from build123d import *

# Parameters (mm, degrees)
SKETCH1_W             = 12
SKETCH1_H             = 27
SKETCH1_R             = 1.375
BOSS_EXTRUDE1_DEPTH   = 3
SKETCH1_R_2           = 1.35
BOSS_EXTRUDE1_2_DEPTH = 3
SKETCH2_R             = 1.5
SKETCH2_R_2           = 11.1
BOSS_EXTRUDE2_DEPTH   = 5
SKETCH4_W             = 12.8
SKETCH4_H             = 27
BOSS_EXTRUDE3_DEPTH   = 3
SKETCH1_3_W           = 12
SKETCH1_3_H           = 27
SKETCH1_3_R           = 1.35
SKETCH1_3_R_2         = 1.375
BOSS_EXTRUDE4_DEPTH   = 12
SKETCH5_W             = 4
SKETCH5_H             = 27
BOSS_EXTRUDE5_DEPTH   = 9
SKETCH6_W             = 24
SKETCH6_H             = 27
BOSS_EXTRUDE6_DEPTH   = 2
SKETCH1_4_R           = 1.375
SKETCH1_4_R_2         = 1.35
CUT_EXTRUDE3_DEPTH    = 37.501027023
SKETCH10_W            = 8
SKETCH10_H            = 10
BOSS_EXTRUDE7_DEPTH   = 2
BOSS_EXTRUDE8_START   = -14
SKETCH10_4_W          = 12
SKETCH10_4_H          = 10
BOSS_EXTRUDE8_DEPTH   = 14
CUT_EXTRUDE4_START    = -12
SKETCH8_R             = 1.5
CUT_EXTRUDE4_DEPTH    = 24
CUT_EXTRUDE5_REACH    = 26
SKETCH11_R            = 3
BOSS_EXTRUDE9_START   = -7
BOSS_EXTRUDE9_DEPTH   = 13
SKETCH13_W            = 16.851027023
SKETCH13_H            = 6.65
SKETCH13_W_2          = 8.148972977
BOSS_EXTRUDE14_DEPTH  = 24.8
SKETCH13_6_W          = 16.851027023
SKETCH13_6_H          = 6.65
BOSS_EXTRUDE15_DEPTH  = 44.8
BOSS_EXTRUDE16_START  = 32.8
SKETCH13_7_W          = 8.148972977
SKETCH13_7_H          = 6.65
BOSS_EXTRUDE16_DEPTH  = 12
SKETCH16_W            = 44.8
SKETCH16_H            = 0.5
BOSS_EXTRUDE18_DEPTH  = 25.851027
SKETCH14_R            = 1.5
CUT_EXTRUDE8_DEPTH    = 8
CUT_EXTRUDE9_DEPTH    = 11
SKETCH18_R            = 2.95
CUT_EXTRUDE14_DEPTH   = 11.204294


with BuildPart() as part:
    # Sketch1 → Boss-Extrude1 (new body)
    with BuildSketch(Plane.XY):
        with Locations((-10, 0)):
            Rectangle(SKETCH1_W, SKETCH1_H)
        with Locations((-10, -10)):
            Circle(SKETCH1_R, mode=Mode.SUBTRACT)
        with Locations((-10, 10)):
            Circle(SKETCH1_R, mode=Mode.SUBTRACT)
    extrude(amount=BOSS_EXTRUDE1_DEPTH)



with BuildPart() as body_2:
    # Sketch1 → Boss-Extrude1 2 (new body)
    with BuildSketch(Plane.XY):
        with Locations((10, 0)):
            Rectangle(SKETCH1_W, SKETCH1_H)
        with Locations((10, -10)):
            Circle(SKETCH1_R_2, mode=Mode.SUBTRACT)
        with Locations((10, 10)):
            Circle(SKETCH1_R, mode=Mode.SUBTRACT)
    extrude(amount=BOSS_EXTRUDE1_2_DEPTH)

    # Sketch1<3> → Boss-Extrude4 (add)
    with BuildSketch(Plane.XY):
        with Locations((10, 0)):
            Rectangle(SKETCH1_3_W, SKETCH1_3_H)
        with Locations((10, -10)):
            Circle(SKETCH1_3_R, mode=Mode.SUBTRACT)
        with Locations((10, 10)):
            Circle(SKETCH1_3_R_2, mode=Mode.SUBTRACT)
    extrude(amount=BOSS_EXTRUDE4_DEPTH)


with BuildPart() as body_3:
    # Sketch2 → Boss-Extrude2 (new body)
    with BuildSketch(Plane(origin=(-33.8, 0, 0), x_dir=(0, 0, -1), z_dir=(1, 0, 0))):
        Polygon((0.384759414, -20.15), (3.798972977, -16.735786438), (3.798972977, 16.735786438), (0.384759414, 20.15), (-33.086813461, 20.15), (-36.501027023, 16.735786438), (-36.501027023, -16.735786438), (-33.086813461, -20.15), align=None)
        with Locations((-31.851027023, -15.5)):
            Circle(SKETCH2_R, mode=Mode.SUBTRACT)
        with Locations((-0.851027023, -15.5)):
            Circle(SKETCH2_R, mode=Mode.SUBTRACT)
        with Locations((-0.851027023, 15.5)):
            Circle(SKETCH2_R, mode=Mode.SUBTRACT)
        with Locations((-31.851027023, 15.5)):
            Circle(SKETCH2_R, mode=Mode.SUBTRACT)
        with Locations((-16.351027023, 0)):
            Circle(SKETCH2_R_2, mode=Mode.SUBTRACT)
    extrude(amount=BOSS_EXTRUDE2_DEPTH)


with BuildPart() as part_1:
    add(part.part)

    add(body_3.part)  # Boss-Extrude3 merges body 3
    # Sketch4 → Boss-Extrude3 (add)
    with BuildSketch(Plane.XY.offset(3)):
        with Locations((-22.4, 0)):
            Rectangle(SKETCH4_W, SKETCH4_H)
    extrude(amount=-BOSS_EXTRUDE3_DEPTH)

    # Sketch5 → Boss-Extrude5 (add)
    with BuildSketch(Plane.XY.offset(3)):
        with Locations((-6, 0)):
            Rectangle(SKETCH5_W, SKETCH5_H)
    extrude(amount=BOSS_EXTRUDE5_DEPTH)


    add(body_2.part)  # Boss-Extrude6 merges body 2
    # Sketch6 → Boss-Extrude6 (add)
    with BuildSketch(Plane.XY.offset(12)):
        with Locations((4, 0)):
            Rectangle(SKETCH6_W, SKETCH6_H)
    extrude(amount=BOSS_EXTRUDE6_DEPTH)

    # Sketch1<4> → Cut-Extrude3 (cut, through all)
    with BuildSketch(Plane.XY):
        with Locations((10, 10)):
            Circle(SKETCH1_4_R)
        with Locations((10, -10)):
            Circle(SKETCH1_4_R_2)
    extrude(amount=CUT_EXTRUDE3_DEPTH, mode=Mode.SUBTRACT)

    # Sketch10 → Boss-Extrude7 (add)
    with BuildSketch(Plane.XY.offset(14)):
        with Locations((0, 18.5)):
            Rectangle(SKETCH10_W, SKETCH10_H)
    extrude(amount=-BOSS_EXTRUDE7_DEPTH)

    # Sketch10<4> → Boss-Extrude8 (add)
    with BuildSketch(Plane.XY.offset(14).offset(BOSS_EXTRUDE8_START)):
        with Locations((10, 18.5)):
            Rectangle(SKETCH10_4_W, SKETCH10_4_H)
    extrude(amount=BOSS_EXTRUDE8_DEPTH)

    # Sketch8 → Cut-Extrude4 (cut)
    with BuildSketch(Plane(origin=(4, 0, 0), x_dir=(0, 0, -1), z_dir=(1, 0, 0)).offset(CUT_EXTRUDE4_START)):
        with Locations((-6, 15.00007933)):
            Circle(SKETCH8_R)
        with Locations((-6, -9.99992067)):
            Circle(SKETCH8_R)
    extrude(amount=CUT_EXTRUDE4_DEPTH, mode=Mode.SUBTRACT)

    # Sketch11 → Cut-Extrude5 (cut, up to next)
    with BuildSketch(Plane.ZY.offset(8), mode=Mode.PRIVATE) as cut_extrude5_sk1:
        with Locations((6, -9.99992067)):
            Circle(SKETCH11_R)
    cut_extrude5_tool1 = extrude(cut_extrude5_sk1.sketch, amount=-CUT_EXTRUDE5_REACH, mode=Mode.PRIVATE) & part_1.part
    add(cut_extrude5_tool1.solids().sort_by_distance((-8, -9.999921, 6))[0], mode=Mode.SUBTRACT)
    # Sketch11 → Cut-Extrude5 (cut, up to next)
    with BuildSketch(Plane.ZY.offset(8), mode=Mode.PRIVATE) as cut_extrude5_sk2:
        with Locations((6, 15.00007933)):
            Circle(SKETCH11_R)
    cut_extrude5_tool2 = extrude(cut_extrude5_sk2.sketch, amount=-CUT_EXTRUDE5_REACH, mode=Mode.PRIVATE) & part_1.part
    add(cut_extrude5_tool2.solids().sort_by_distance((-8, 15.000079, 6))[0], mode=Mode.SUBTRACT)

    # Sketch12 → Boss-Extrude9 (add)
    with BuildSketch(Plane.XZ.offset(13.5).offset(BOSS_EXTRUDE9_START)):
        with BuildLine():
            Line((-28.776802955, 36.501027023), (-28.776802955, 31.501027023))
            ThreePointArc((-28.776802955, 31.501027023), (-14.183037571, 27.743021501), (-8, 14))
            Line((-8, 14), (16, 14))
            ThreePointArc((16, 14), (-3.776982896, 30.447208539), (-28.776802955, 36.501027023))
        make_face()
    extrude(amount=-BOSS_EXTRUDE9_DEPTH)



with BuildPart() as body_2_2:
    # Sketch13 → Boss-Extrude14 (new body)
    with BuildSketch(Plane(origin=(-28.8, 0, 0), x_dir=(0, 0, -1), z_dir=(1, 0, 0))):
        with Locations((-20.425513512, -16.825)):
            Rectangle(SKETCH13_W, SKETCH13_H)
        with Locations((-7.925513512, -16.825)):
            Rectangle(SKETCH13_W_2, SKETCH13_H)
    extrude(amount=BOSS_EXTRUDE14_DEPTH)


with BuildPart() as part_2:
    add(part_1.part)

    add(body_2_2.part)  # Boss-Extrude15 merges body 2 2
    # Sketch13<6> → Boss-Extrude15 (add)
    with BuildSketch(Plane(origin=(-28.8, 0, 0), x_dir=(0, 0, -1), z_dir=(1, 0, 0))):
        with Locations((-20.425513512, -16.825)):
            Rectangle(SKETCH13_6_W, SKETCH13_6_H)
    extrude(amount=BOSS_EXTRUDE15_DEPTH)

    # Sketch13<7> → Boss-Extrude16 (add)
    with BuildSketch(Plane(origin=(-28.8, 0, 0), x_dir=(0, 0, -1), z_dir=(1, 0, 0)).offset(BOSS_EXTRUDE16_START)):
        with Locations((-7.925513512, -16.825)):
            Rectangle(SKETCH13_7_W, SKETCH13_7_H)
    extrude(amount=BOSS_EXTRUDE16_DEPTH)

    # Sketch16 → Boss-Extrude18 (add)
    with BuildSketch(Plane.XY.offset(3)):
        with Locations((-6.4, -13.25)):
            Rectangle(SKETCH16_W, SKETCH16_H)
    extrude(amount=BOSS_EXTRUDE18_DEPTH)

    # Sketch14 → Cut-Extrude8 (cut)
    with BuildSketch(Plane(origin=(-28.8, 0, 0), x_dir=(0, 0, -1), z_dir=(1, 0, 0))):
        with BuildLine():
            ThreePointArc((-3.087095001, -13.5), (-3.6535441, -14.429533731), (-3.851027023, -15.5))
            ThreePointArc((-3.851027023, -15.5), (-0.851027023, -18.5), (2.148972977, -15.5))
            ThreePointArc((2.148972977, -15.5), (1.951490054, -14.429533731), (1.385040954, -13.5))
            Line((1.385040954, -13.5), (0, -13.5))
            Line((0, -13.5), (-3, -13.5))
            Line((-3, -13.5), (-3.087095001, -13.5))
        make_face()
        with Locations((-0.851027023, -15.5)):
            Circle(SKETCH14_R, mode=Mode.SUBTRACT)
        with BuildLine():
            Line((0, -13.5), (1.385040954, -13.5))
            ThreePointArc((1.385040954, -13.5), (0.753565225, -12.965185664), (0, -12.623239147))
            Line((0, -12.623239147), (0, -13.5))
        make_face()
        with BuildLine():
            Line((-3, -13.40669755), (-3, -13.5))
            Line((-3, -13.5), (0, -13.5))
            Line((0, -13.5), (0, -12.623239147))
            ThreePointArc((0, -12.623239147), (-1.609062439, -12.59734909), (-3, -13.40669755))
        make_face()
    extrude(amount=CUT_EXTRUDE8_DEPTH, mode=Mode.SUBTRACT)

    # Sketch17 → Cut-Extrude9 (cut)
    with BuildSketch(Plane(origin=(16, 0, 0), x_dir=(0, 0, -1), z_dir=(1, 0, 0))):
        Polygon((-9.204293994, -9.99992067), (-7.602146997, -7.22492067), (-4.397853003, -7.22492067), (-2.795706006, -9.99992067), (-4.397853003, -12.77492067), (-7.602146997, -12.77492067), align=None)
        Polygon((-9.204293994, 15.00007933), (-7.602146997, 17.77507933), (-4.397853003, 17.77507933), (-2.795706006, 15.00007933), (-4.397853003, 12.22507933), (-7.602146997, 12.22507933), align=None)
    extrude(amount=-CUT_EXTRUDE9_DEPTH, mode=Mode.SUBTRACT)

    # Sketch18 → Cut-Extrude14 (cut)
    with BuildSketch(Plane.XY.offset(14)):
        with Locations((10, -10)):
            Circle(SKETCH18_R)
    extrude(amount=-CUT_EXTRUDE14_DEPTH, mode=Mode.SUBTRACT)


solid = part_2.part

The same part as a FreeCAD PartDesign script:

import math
import FreeCAD as App
import Part
import Sketcher
Q = App.Units.Quantity


def add_polygon(sketch, points):
    """Adds a closed chain of lines whose ends are joined by coincident constraints."""
    first, n = sketch.GeometryCount, len(points)
    for a, b in zip(points, points[1:] + points[:1]):
        sketch.addGeometry(Part.LineSegment(App.Vector(*a, 0), App.Vector(*b, 0)), False)
    for i in range(n):
        sketch.addConstraint(Sketcher.Constraint("Coincident", first + i, 2, first + (i + 1) % n, 1))

doc = App.newDocument("Part")
params = doc.addObject("Spreadsheet::Sheet", "Params")
for row, (alias, value) in enumerate([
    ("sketch1_diameter", "2.75 mm"),
    ("sketch1_width", "12 mm"),
    ("sketch1_height", "27 mm"),
    ("pad1_length", "3 mm"),
    ("sketch2_diameter", "2.7 mm"),
    ("sketch2_diameter2", "2.75 mm"),
    ("sketch2_width", "12 mm"),
    ("sketch2_height", "27 mm"),
    ("pad2_length", "3 mm"),
    ("sketch3_diameter", "2.7 mm"),
    ("sketch3_diameter2", "2.75 mm"),
    ("sketch3_width", "12 mm"),
    ("sketch3_height", "27 mm"),
    ("pad3_length", "12 mm"),
    ("sketch4_diameter", "3 mm"),
    ("sketch4_diameter2", "22.2 mm"),
    ("pad4_length", "5 mm"),
    ("sketch5_height", "27 mm"),
    ("sketch5_width", "12.8 mm"),
    ("pad5_length", "3 mm"),
    ("sketch6_width", "4 mm"),
    ("sketch6_height", "27 mm"),
    ("pad6_length", "9 mm"),
    ("sketch7_width", "24 mm"),
    ("sketch7_height", "27 mm"),
    ("pad7_length", "2 mm"),
    ("sketch8_diameter", "2.7 mm"),
    ("sketch8_diameter2", "2.75 mm"),
    ("sketch9_width", "8 mm"),
    ("sketch9_height", "10 mm"),
    ("pad8_length", "2 mm"),
    ("sketch10_width", "12 mm"),
    ("sketch10_height", "10 mm"),
    ("pad9_length", "14 mm"),
    ("sketch11_diameter", "3 mm"),
    ("pocket2_length", "24 mm"),
    ("sketch12_diameter", "6 mm"),
    ("pocket3_length", "4 mm"),
    ("sketch13_diameter", "6 mm"),
    ("pocket4_length", "4 mm"),
    ("sketch14_width", "24 mm"),
    ("sketch14_height", "5 mm"),
    ("pad10_length", "13 mm"),
    ("sketch15_height", "25 mm"),
    ("sketch15_width", "6.65 mm"),
    ("pad11_length", "24.8 mm"),
    ("sketch16_width", "6.65 mm"),
    ("pad12_length", "44.8 mm"),
    ("sketch17_width", "6.65 mm"),
    ("pad13_length", "12 mm"),
    ("sketch18_width", "44.8 mm"),
    ("sketch18_height", "0.5 mm"),
    ("pad14_length", "25.851027 mm"),
    ("sketch19_diameter", "3 mm"),
    ("sketch19_radius", "3 mm"),
    ("pocket5_length", "8 mm"),
    ("pocket6_length", "11 mm"),
    ("sketch21_diameter", "5.9 mm"),
    ("pocket7_length", "11.204294 mm"),
], start=1):
    params.set(f"A{row}", alias)
    params.set(f"B{row}", "=" + value)
    params.setAlias(f"B{row}", alias)

body = doc.addObject("PartDesign::Body", "Body")

sketch1 = doc.addObject("Sketcher::SketchObject", "Sketch")
body.addObject(sketch1)
sketch1.AttachmentSupport = (doc.XY_Plane, [""])
sketch1.MapMode = "FlatFace"
add_polygon(sketch1, [(-16, 13.5), (-16, -13.5), (-4, -13.5), (-4, 13.5)])
sketch1.addGeometry(Part.Circle(App.Vector(-10, -10, 0), App.Vector(0, 0, 1), 1.375), False)
sketch1.addGeometry(Part.Circle(App.Vector(-10, 10, 0), App.Vector(0, 0, 1), 1.375), False)
sketch1.addConstraint(Sketcher.Constraint("Vertical", 0))
sketch1.addConstraint(Sketcher.Constraint("Horizontal", 1))
sketch1.addConstraint(Sketcher.Constraint("Vertical", 2))
sketch1.addConstraint(Sketcher.Constraint("Horizontal", 3))
sketch1.addConstraint(Sketcher.Constraint("Equal", 4, 5))
sketch1.addConstraint(Sketcher.Constraint("Symmetric", 4, 3, 5, 3, -1))
sketch1.addConstraint(Sketcher.Constraint("Diameter", 4, Q("2.75 mm")))
sketch1.addConstraint(Sketcher.Constraint("DistanceX", 1, 1, 1, 2, Q("12 mm")))
sketch1.addConstraint(Sketcher.Constraint("DistanceY", 0, 2, 0, 1, Q("27 mm")))
sketch1.addConstraint(Sketcher.Constraint("DistanceX", 4, 3, -1, 1, Q("10 mm")))
sketch1.addConstraint(Sketcher.Constraint("DistanceY", 4, 3, -1, 1, Q("10 mm")))
sketch1.addConstraint(Sketcher.Constraint("DistanceX", 0, 2, -1, 1, Q("16 mm")))
sketch1.addConstraint(Sketcher.Constraint("DistanceY", 0, 2, -1, 1, Q("13.5 mm")))
sketch1.setExpression("Constraints[10]", "Params.sketch1_diameter")
sketch1.setExpression("Constraints[11]", "Params.sketch1_width")
sketch1.setExpression("Constraints[12]", "Params.sketch1_height")
pad1 = doc.addObject("PartDesign::Pad", "Pad")
body.addObject(pad1)
pad1.Profile = sketch1
pad1.setExpression("Length", "Params.pad1_length")
body2 = doc.addObject("PartDesign::Body", "Body001")

sketch2 = doc.addObject("Sketcher::SketchObject", "Sketch001")
body2.addObject(sketch2)
sketch2.AttachmentSupport = (doc.getObject("XY_Plane001"), [""])
sketch2.MapMode = "FlatFace"
add_polygon(sketch2, [(4, 13.5), (4, -13.5), (16, -13.5), (16, 13.5)])
sketch2.addGeometry(Part.Circle(App.Vector(10, -10, 0), App.Vector(0, 0, 1), 1.35), False)
sketch2.addGeometry(Part.Circle(App.Vector(10, 10, 0), App.Vector(0, 0, 1), 1.375), False)
sketch2.addConstraint(Sketcher.Constraint("Vertical", 0))
sketch2.addConstraint(Sketcher.Constraint("Horizontal", 1))
sketch2.addConstraint(Sketcher.Constraint("Vertical", 2))
sketch2.addConstraint(Sketcher.Constraint("Horizontal", 3))
sketch2.addConstraint(Sketcher.Constraint("Symmetric", 4, 3, 5, 3, -1))
sketch2.addConstraint(Sketcher.Constraint("Diameter", 4, Q("2.7 mm")))
sketch2.addConstraint(Sketcher.Constraint("Diameter", 5, Q("2.75 mm")))
sketch2.addConstraint(Sketcher.Constraint("DistanceX", 1, 1, 1, 2, Q("12 mm")))
sketch2.addConstraint(Sketcher.Constraint("DistanceY", 0, 2, 0, 1, Q("27 mm")))
sketch2.addConstraint(Sketcher.Constraint("DistanceX", -1, 1, 4, 3, Q("10 mm")))
sketch2.addConstraint(Sketcher.Constraint("DistanceY", 4, 3, -1, 1, Q("10 mm")))
sketch2.addConstraint(Sketcher.Constraint("DistanceX", -1, 1, 0, 2, Q("4 mm")))
sketch2.addConstraint(Sketcher.Constraint("DistanceY", 0, 2, -1, 1, Q("13.5 mm")))
sketch2.setExpression("Constraints[9]", "Params.sketch2_diameter")
sketch2.setExpression("Constraints[10]", "Params.sketch2_diameter2")
sketch2.setExpression("Constraints[11]", "Params.sketch2_width")
sketch2.setExpression("Constraints[12]", "Params.sketch2_height")
pad2 = doc.addObject("PartDesign::Pad", "Pad001")
body2.addObject(pad2)
pad2.Profile = sketch2
pad2.setExpression("Length", "Params.pad2_length")

sketch3 = doc.addObject("Sketcher::SketchObject", "Sketch002")
body2.addObject(sketch3)
sketch3.AttachmentSupport = (doc.getObject("XY_Plane001"), [""])
sketch3.MapMode = "FlatFace"
add_polygon(sketch3, [(4, 13.5), (4, -13.5), (16, -13.5), (16, 13.5)])
sketch3.addGeometry(Part.Circle(App.Vector(10, -10, 0), App.Vector(0, 0, 1), 1.35), False)
sketch3.addGeometry(Part.Circle(App.Vector(10, 10, 0), App.Vector(0, 0, 1), 1.375), False)
sketch3.addConstraint(Sketcher.Constraint("Vertical", 0))
sketch3.addConstraint(Sketcher.Constraint("Horizontal", 1))
sketch3.addConstraint(Sketcher.Constraint("Vertical", 2))
sketch3.addConstraint(Sketcher.Constraint("Horizontal", 3))
sketch3.addConstraint(Sketcher.Constraint("Symmetric", 4, 3, 5, 3, -1))
sketch3.addConstraint(Sketcher.Constraint("Diameter", 4, Q("2.7 mm")))
sketch3.addConstraint(Sketcher.Constraint("Diameter", 5, Q("2.75 mm")))
sketch3.addConstraint(Sketcher.Constraint("DistanceX", 1, 1, 1, 2, Q("12 mm")))
sketch3.addConstraint(Sketcher.Constraint("DistanceY", 0, 2, 0, 1, Q("27 mm")))
sketch3.addConstraint(Sketcher.Constraint("DistanceX", -1, 1, 4, 3, Q("10 mm")))
sketch3.addConstraint(Sketcher.Constraint("DistanceY", 4, 3, -1, 1, Q("10 mm")))
sketch3.addConstraint(Sketcher.Constraint("DistanceX", -1, 1, 0, 2, Q("4 mm")))
sketch3.addConstraint(Sketcher.Constraint("DistanceY", 0, 2, -1, 1, Q("13.5 mm")))
sketch3.setExpression("Constraints[9]", "Params.sketch3_diameter")
sketch3.setExpression("Constraints[10]", "Params.sketch3_diameter2")
sketch3.setExpression("Constraints[11]", "Params.sketch3_width")
sketch3.setExpression("Constraints[12]", "Params.sketch3_height")
pad3 = doc.addObject("PartDesign::Pad", "Pad002")
body2.addObject(pad3)
pad3.Profile = sketch3
pad3.setExpression("Length", "Params.pad3_length")
body3 = doc.addObject("PartDesign::Body", "Body002")

sketch4 = doc.addObject("Sketcher::SketchObject", "Sketch003")
body3.addObject(sketch4)
sketch4.AttachmentSupport = (doc.getObject("YZ_Plane002"), [""])
sketch4.MapMode = "FlatFace"
sketch4.AttachmentOffset = App.Placement(App.Vector(0, 0, -33.8), App.Rotation())
add_polygon(sketch4, [(-20.15, -0.384759), (-16.735786, -3.798973), (16.735786, -3.798973), (20.15, -0.384759), (20.15, 33.086813), (16.735786, 36.501027), (-16.735786, 36.501027), (-20.15, 33.086813)])
sketch4.addGeometry(Part.Circle(App.Vector(-15.5, 31.851027, 0), App.Vector(0, 0, 1), 1.5), False)
sketch4.addGeometry(Part.Circle(App.Vector(-15.5, 0.851027, 0), App.Vector(0, 0, 1), 1.5), False)
sketch4.addGeometry(Part.Circle(App.Vector(15.5, 31.851027, 0), App.Vector(0, 0, 1), 1.5), False)
sketch4.addGeometry(Part.Circle(App.Vector(0, 16.351027, 0), App.Vector(0, 0, 1), 11.1), False)
sketch4.addGeometry(Part.Circle(App.Vector(15.5, 0.851027, 0), App.Vector(0, 0, 1), 1.5), False)
sketch4.addConstraint(Sketcher.Constraint("Horizontal", 1))
sketch4.addConstraint(Sketcher.Constraint("Vertical", 3))
sketch4.addConstraint(Sketcher.Constraint("Horizontal", 5))
sketch4.addConstraint(Sketcher.Constraint("Vertical", 7))
sketch4.addConstraint(Sketcher.Constraint("Equal", 8, 9))
sketch4.addConstraint(Sketcher.Constraint("Equal", 9, 10))
sketch4.addConstraint(Sketcher.Constraint("Equal", 10, 12))
sketch4.addConstraint(Sketcher.Constraint("Symmetric", 8, 3, 10, 3, -2))
sketch4.addConstraint(Sketcher.Constraint("Symmetric", 9, 3, 12, 3, -2))
sketch4.addConstraint(Sketcher.Constraint("Symmetric", 3, 2, 6, 2, -2))
sketch4.addConstraint(Sketcher.Constraint("PointOnObject", 11, 3, -2))
sketch4.addConstraint(Sketcher.Constraint("Perpendicular", 0, 2))
sketch4.addConstraint(Sketcher.Constraint("Perpendicular", 2, 4))
sketch4.addConstraint(Sketcher.Constraint("Perpendicular", 4, 6))
sketch4.addConstraint(Sketcher.Constraint("Horizontal", 2, 2, 7, 2))
sketch4.addConstraint(Sketcher.Constraint("Vertical", 8, 3, 9, 3))
sketch4.addConstraint(Sketcher.Constraint("Vertical", 1, 2, 4, 2))
sketch4.addConstraint(Sketcher.Constraint("Vertical", 0, 2, 5, 2))
sketch4.addConstraint(Sketcher.Constraint("Equal", 5, 3))
sketch4.addConstraint(Sketcher.Constraint("Diameter", 8, Q("3 mm")))
sketch4.addConstraint(Sketcher.Constraint("Diameter", 11, Q("22.2 mm")))
sketch4.addConstraint(Sketcher.Constraint("DistanceY", 9, 3, 8, 3, Q("31 mm")))
sketch4.addConstraint(Sketcher.Constraint("DistanceX", 8, 3, 10, 3, Q("31 mm")))
sketch4.addConstraint(Sketcher.Constraint("DistanceY", 11, 3, 8, 3, Q("15.5 mm")))
sketch4.addConstraint(Sketcher.Constraint("DistanceX", -1, 1, 2, 2, Q("20.15 mm")))
sketch4.addConstraint(Sketcher.Constraint("DistanceY", 0, 2, 9, 3, Q("4.65 mm")))
sketch4.addConstraint(Sketcher.Constraint("DistanceX", 1, 1, 1, 2, Q("33.471573 mm")))
sketch4.addConstraint(Sketcher.Constraint("DistanceY", 2, 2, -1, 1, Q("0.384759 mm")))
sketch4.setExpression("Constraints[27]", "Params.sketch4_diameter")
sketch4.setExpression("Constraints[28]", "Params.sketch4_diameter2")
pad4 = doc.addObject("PartDesign::Pad", "Pad003")
body3.addObject(pad4)
pad4.Profile = sketch4
pad4.setExpression("Length", "Params.pad4_length")
body.AllowCompound = True
doc.recompute()

boolean = doc.addObject("PartDesign::Boolean", "Boolean")
body.addObject(boolean)
boolean.Type = "Fuse"
boolean.addObjects([body3])

sketch5 = doc.addObject("Sketcher::SketchObject", "Sketch004")
body.addObject(sketch5)
sketch5.AttachmentSupport = (doc.XY_Plane, [""])
sketch5.MapMode = "FlatFace"
sketch5.AttachmentOffset = App.Placement(App.Vector(0, 0, 3), App.Rotation())
add_polygon(sketch5, [(-28.8, 13.5), (-28.8, -13.5), (-16, -13.5), (-16, 13.5)])
sketch5.addConstraint(Sketcher.Constraint("Vertical", 0))
sketch5.addConstraint(Sketcher.Constraint("Horizontal", 1))
sketch5.addConstraint(Sketcher.Constraint("Vertical", 2))
sketch5.addConstraint(Sketcher.Constraint("Horizontal", 3))
sketch5.addConstraint(Sketcher.Constraint("DistanceY", 0, 2, 0, 1, Q("27 mm")))
sketch5.addConstraint(Sketcher.Constraint("DistanceX", 1, 1, 1, 2, Q("12.8 mm")))
sketch5.addConstraint(Sketcher.Constraint("DistanceX", 1, 2, -1, 1, Q("16 mm")))
sketch5.addConstraint(Sketcher.Constraint("DistanceY", 0, 2, -1, 1, Q("13.5 mm")))
sketch5.setExpression("Constraints[8]", "Params.sketch5_height")
sketch5.setExpression("Constraints[9]", "Params.sketch5_width")
pad5 = doc.addObject("PartDesign::Pad", "Pad004")
body.addObject(pad5)
pad5.Profile = sketch5
pad5.setExpression("Length", "Params.pad5_length")
pad5.Reversed = True

sketch6 = doc.addObject("Sketcher::SketchObject", "Sketch005")
body.addObject(sketch6)
sketch6.AttachmentSupport = (doc.XY_Plane, [""])
sketch6.MapMode = "FlatFace"
sketch6.AttachmentOffset = App.Placement(App.Vector(0, 0, 3), App.Rotation())
add_polygon(sketch6, [(-8, 13.5), (-8, -13.5), (-4, -13.5), (-4, 13.5)])
sketch6.addConstraint(Sketcher.Constraint("Vertical", 0))
sketch6.addConstraint(Sketcher.Constraint("Horizontal", 1))
sketch6.addConstraint(Sketcher.Constraint("Vertical", 2))
sketch6.addConstraint(Sketcher.Constraint("Horizontal", 3))
sketch6.addConstraint(Sketcher.Constraint("DistanceX", 1, 1, 1, 2, Q("4 mm")))
sketch6.addConstraint(Sketcher.Constraint("DistanceY", 0, 2, 0, 1, Q("27 mm")))
sketch6.addConstraint(Sketcher.Constraint("DistanceX", 0, 2, -1, 1, Q("8 mm")))
sketch6.addConstraint(Sketcher.Constraint("DistanceY", 0, 2, -1, 1, Q("13.5 mm")))
sketch6.setExpression("Constraints[8]", "Params.sketch6_width")
sketch6.setExpression("Constraints[9]", "Params.sketch6_height")
pad6 = doc.addObject("PartDesign::Pad", "Pad005")
body.addObject(pad6)
pad6.Profile = sketch6
pad6.setExpression("Length", "Params.pad6_length")
doc.recompute()

boolean2 = doc.addObject("PartDesign::Boolean", "Boolean001")
body.addObject(boolean2)
boolean2.Type = "Fuse"
boolean2.addObjects([body2])

sketch7 = doc.addObject("Sketcher::SketchObject", "Sketch006")
body.addObject(sketch7)
sketch7.AttachmentSupport = (doc.XY_Plane, [""])
sketch7.MapMode = "FlatFace"
sketch7.AttachmentOffset = App.Placement(App.Vector(0, 0, 12), App.Rotation())
add_polygon(sketch7, [(-8, 13.5), (-8, -13.5), (16, -13.5), (16, 13.5)])
sketch7.addConstraint(Sketcher.Constraint("Vertical", 0))
sketch7.addConstraint(Sketcher.Constraint("Horizontal", 1))
sketch7.addConstraint(Sketcher.Constraint("Vertical", 2))
sketch7.addConstraint(Sketcher.Constraint("Horizontal", 3))
sketch7.addConstraint(Sketcher.Constraint("DistanceX", 1, 1, 1, 2, Q("24 mm")))
sketch7.addConstraint(Sketcher.Constraint("DistanceY", 0, 2, 0, 1, Q("27 mm")))
sketch7.addConstraint(Sketcher.Constraint("DistanceX", 0, 2, -1, 1, Q("8 mm")))
sketch7.addConstraint(Sketcher.Constraint("DistanceY", 0, 2, -1, 1, Q("13.5 mm")))
sketch7.setExpression("Constraints[8]", "Params.sketch7_width")
sketch7.setExpression("Constraints[9]", "Params.sketch7_height")
pad7 = doc.addObject("PartDesign::Pad", "Pad006")
body.addObject(pad7)
pad7.Profile = sketch7
pad7.setExpression("Length", "Params.pad7_length")

sketch8 = doc.addObject("Sketcher::SketchObject", "Sketch007")
body.addObject(sketch8)
sketch8.AttachmentSupport = (doc.XY_Plane, [""])
sketch8.MapMode = "FlatFace"
sketch8.addGeometry(Part.Circle(App.Vector(10, 10, 0), App.Vector(0, 0, 1), 1.375), False)
sketch8.addGeometry(Part.Circle(App.Vector(10, -10, 0), App.Vector(0, 0, 1), 1.35), False)
sketch8.addConstraint(Sketcher.Constraint("Symmetric", 0, 3, 1, 3, -1))
sketch8.addConstraint(Sketcher.Constraint("Diameter", 1, Q("2.7 mm")))
sketch8.addConstraint(Sketcher.Constraint("Diameter", 0, Q("2.75 mm")))
sketch8.addConstraint(Sketcher.Constraint("DistanceX", -1, 1, 0, 3, Q("10 mm")))
sketch8.addConstraint(Sketcher.Constraint("DistanceY", -1, 1, 0, 3, Q("10 mm")))
sketch8.setExpression("Constraints[1]", "Params.sketch8_diameter")
sketch8.setExpression("Constraints[2]", "Params.sketch8_diameter2")
pocket1 = doc.addObject("PartDesign::Pocket", "Pocket")
body.addObject(pocket1)
pocket1.Profile = sketch8
pocket1.Type = "ThroughAll"
pocket1.Reversed = True

sketch9 = doc.addObject("Sketcher::SketchObject", "Sketch008")
body.addObject(sketch9)
sketch9.AttachmentSupport = (doc.XY_Plane, [""])
sketch9.MapMode = "FlatFace"
sketch9.AttachmentOffset = App.Placement(App.Vector(0, 0, 14), App.Rotation())
add_polygon(sketch9, [(-4, 23.5), (-4, 13.5), (4, 13.5), (4, 23.5)])
sketch9.addConstraint(Sketcher.Constraint("Vertical", 0))
sketch9.addConstraint(Sketcher.Constraint("Horizontal", 1))
sketch9.addConstraint(Sketcher.Constraint("Vertical", 2))
sketch9.addConstraint(Sketcher.Constraint("Horizontal", 3))
sketch9.addConstraint(Sketcher.Constraint("DistanceX", 1, 1, 1, 2, Q("8 mm")))
sketch9.addConstraint(Sketcher.Constraint("DistanceY", 0, 2, 0, 1, Q("10 mm")))
sketch9.addConstraint(Sketcher.Constraint("DistanceX", 0, 2, -1, 1, Q("4 mm")))
sketch9.addConstraint(Sketcher.Constraint("DistanceY", -1, 1, 0, 2, Q("13.5 mm")))
sketch9.setExpression("Constraints[8]", "Params.sketch9_width")
sketch9.setExpression("Constraints[9]", "Params.sketch9_height")
pad8 = doc.addObject("PartDesign::Pad", "Pad007")
body.addObject(pad8)
pad8.Profile = sketch9
pad8.setExpression("Length", "Params.pad8_length")
pad8.Reversed = True

sketch10 = doc.addObject("Sketcher::SketchObject", "Sketch009")
body.addObject(sketch10)
sketch10.AttachmentSupport = (doc.XY_Plane, [""])
sketch10.MapMode = "FlatFace"
add_polygon(sketch10, [(4, 23.5), (4, 13.5), (16, 13.5), (16, 23.5)])
sketch10.addConstraint(Sketcher.Constraint("Vertical", 0))
sketch10.addConstraint(Sketcher.Constraint("Horizontal", 1))
sketch10.addConstraint(Sketcher.Constraint("Vertical", 2))
sketch10.addConstraint(Sketcher.Constraint("Horizontal", 3))
sketch10.addConstraint(Sketcher.Constraint("DistanceX", 1, 1, 1, 2, Q("12 mm")))
sketch10.addConstraint(Sketcher.Constraint("DistanceY", 0, 2, 0, 1, Q("10 mm")))
sketch10.addConstraint(Sketcher.Constraint("DistanceX", -1, 1, 0, 2, Q("4 mm")))
sketch10.addConstraint(Sketcher.Constraint("DistanceY", -1, 1, 0, 2, Q("13.5 mm")))
sketch10.setExpression("Constraints[8]", "Params.sketch10_width")
sketch10.setExpression("Constraints[9]", "Params.sketch10_height")
pad9 = doc.addObject("PartDesign::Pad", "Pad008")
body.addObject(pad9)
pad9.Profile = sketch10
pad9.setExpression("Length", "Params.pad9_length")

sketch11 = doc.addObject("Sketcher::SketchObject", "Sketch010")
body.addObject(sketch11)
sketch11.AttachmentSupport = (doc.YZ_Plane, [""])
sketch11.MapMode = "FlatFace"
sketch11.AttachmentOffset = App.Placement(App.Vector(0, 0, -8), App.Rotation())
sketch11.addGeometry(Part.Circle(App.Vector(15.000079, 6, 0), App.Vector(0, 0, 1), 1.5), False)
sketch11.addGeometry(Part.Circle(App.Vector(-9.999921, 6, 0), App.Vector(0, 0, 1), 1.5), False)
sketch11.addConstraint(Sketcher.Constraint("Equal", 0, 1))
sketch11.addConstraint(Sketcher.Constraint("Horizontal", 0, 3, 1, 3))
sketch11.addConstraint(Sketcher.Constraint("Diameter", 0, Q("3 mm")))
sketch11.addConstraint(Sketcher.Constraint("DistanceY", -1, 1, 0, 3, Q("6 mm")))
sketch11.addConstraint(Sketcher.Constraint("DistanceX", 1, 3, 0, 3, Q("25 mm")))
sketch11.addConstraint(Sketcher.Constraint("DistanceX", -1, 1, 0, 3, Q("15.000079 mm")))
sketch11.setExpression("Constraints[2]", "Params.sketch11_diameter")
pocket2 = doc.addObject("PartDesign::Pocket", "Pocket001")
body.addObject(pocket2)
pocket2.Profile = sketch11
pocket2.setExpression("Length", "Params.pocket2_length")
pocket2.Reversed = True

sketch12 = doc.addObject("Sketcher::SketchObject", "Sketch011")
body.addObject(sketch12)
sketch12.AttachmentSupport = (doc.YZ_Plane, [""])
sketch12.MapMode = "FlatFace"
sketch12.AttachmentOffset = App.Placement(App.Vector(0, 0, -8), App.Rotation())
sketch12.addGeometry(Part.Circle(App.Vector(-9.999921, 6, 0), App.Vector(0, 0, 1), 3), False)
sketch12.addConstraint(Sketcher.Constraint("Diameter", 0, Q("6 mm")))
sketch12.addConstraint(Sketcher.Constraint("DistanceY", -1, 1, 0, 3, Q("6 mm")))
sketch12.addConstraint(Sketcher.Constraint("DistanceX", 0, 3, -1, 1, Q("9.999921 mm")))
sketch12.setExpression("Constraints[0]", "Params.sketch12_diameter")
pocket3 = doc.addObject("PartDesign::Pocket", "Pocket002")
body.addObject(pocket3)
pocket3.Profile = sketch12
pocket3.setExpression("Length", "Params.pocket3_length")
pocket3.Reversed = True

sketch13 = doc.addObject("Sketcher::SketchObject", "Sketch012")
body.addObject(sketch13)
sketch13.AttachmentSupport = (doc.YZ_Plane, [""])
sketch13.MapMode = "FlatFace"
sketch13.AttachmentOffset = App.Placement(App.Vector(0, 0, -8), App.Rotation())
sketch13.addGeometry(Part.Circle(App.Vector(15.000079, 6, 0), App.Vector(0, 0, 1), 3), False)
sketch13.addConstraint(Sketcher.Constraint("Diameter", 0, Q("6 mm")))
sketch13.addConstraint(Sketcher.Constraint("DistanceY", -1, 1, 0, 3, Q("6 mm")))
sketch13.addConstraint(Sketcher.Constraint("DistanceX", -1, 1, 0, 3, Q("15.000079 mm")))
sketch13.setExpression("Constraints[0]", "Params.sketch13_diameter")
pocket4 = doc.addObject("PartDesign::Pocket", "Pocket003")
body.addObject(pocket4)
pocket4.Profile = sketch13
pocket4.setExpression("Length", "Params.pocket4_length")
pocket4.Reversed = True

sketch14 = doc.addObject("Sketcher::SketchObject", "Sketch013")
body.addObject(sketch14)
sketch14.AttachmentSupport = (doc.XZ_Plane, [""])
sketch14.MapMode = "FlatFace"
sketch14.AttachmentOffset = App.Placement(App.Vector(0, 0, 6.5), App.Rotation())
sketch14.addGeometry(Part.LineSegment(App.Vector(-28.776803, 36.501027, 0), App.Vector(-28.776803, 31.501027, 0)), False)
sketch14.addGeometry(Part.ArcOfCircle(Part.Circle(App.Vector(-25.389746, 14.438684, 0), App.Vector(0, 0, 1), 17.395278), math.radians(-1.445071), math.radians(101.227859)), False)
sketch14.addGeometry(Part.LineSegment(App.Vector(-8, 14, 0), App.Vector(16, 14, 0)), False)
sketch14.addGeometry(Part.ArcOfCircle(Part.Circle(App.Vector(-29.317423, -20.377995, 0), App.Vector(0, 0, 1), 56.881591), math.radians(37.184112), math.radians(89.455435)), False)
sketch14.addConstraint(Sketcher.Constraint("Coincident", 0, 2, 1, 2))
sketch14.addConstraint(Sketcher.Constraint("Coincident", 1, 1, 2, 1))
sketch14.addConstraint(Sketcher.Constraint("Coincident", 2, 2, 3, 1))
sketch14.addConstraint(Sketcher.Constraint("Coincident", 3, 2, 0, 1))
sketch14.addConstraint(Sketcher.Constraint("Vertical", 0))
sketch14.addConstraint(Sketcher.Constraint("Horizontal", 2))
sketch14.addConstraint(Sketcher.Constraint("DistanceX", 2, 1, 2, 2, Q("24 mm")))
sketch14.addConstraint(Sketcher.Constraint("DistanceY", 0, 2, 0, 1, Q("5 mm")))
sketch14.addConstraint(Sketcher.Constraint("DistanceX", 1, 1, -1, 1, Q("8 mm")))
sketch14.addConstraint(Sketcher.Constraint("DistanceY", -1, 1, 1, 1, Q("14 mm")))
sketch14.addConstraint(Sketcher.Constraint("Radius", 1, Q("17.395278 mm")))
sketch14.addConstraint(Sketcher.Constraint("Radius", 3, Q("56.881591 mm")))
sketch14.addConstraint(Sketcher.Constraint("DistanceY", 3, 3, 1, 3, Q("34.816679 mm")))
sketch14.addConstraint(Sketcher.Constraint("DistanceX", 3, 3, 0, 2, Q("0.54062 mm")))
sketch14.setExpression("Constraints[6]", "Params.sketch14_width")
sketch14.setExpression("Constraints[7]", "Params.sketch14_height")
pad10 = doc.addObject("PartDesign::Pad", "Pad009")
body.addObject(pad10)
pad10.Profile = sketch14
pad10.setExpression("Length", "Params.pad10_length")
pad10.Reversed = True
body4 = doc.addObject("PartDesign::Body", "Body003")

sketch15 = doc.addObject("Sketcher::SketchObject", "Sketch014")
body4.addObject(sketch15)
sketch15.AttachmentSupport = (doc.getObject("YZ_Plane003"), [""])
sketch15.MapMode = "FlatFace"
sketch15.AttachmentOffset = App.Placement(App.Vector(0, 0, -28.8), App.Rotation())
add_polygon(sketch15, [(-13.5, 28.851027), (-20.15, 28.851027), (-20.15, 3.851027), (-13.5, 3.851027)])
sketch15.addConstraint(Sketcher.Constraint("Horizontal", 0))
sketch15.addConstraint(Sketcher.Constraint("Vertical", 1))
sketch15.addConstraint(Sketcher.Constraint("Horizontal", 2))
sketch15.addConstraint(Sketcher.Constraint("Vertical", 3))
sketch15.addConstraint(Sketcher.Constraint("DistanceY", 1, 2, 1, 1, Q("25 mm")))
sketch15.addConstraint(Sketcher.Constraint("DistanceX", 0, 2, 0, 1, Q("6.65 mm")))
sketch15.addConstraint(Sketcher.Constraint("DistanceX", 2, 2, -1, 1, Q("13.5 mm")))
sketch15.addConstraint(Sketcher.Constraint("DistanceY", -1, 1, 0, 2, Q("28.851027 mm")))
sketch15.setExpression("Constraints[8]", "Params.sketch15_height")
sketch15.setExpression("Constraints[9]", "Params.sketch15_width")
pad11 = doc.addObject("PartDesign::Pad", "Pad010")
body4.addObject(pad11)
pad11.Profile = sketch15
pad11.setExpression("Length", "Params.pad11_length")
doc.recompute()

boolean3 = doc.addObject("PartDesign::Boolean", "Boolean002")
body.addObject(boolean3)
boolean3.Type = "Fuse"
boolean3.addObjects([body4])

sketch16 = doc.addObject("Sketcher::SketchObject", "Sketch015")
body.addObject(sketch16)
sketch16.AttachmentSupport = (doc.YZ_Plane, [""])
sketch16.MapMode = "FlatFace"
sketch16.AttachmentOffset = App.Placement(App.Vector(0, 0, -28.8), App.Rotation())
add_polygon(sketch16, [(-13.5, 28.851027), (-20.15, 28.851027), (-20.15, 12), (-13.5, 12)])
sketch16.addConstraint(Sketcher.Constraint("Horizontal", 0))
sketch16.addConstraint(Sketcher.Constraint("Vertical", 1))
sketch16.addConstraint(Sketcher.Constraint("Horizontal", 2))
sketch16.addConstraint(Sketcher.Constraint("Vertical", 3))
sketch16.addConstraint(Sketcher.Constraint("DistanceY", -1, 1, 1, 2, Q("12 mm")))
sketch16.addConstraint(Sketcher.Constraint("DistanceX", 0, 2, 0, 1, Q("6.65 mm")))
sketch16.addConstraint(Sketcher.Constraint("DistanceX", 2, 2, -1, 1, Q("13.5 mm")))
sketch16.addConstraint(Sketcher.Constraint("DistanceY", 1, 2, 1, 1, Q("16.851027 mm")))
sketch16.setExpression("Constraints[9]", "Params.sketch16_width")
pad12 = doc.addObject("PartDesign::Pad", "Pad011")
body.addObject(pad12)
pad12.Profile = sketch16
pad12.setExpression("Length", "Params.pad12_length")

sketch17 = doc.addObject("Sketcher::SketchObject", "Sketch016")
body.addObject(sketch17)
sketch17.AttachmentSupport = (doc.YZ_Plane, [""])
sketch17.MapMode = "FlatFace"
sketch17.AttachmentOffset = App.Placement(App.Vector(0, 0, 4), App.Rotation())
add_polygon(sketch17, [(-13.5, 12), (-20.15, 12), (-20.15, 3.851027), (-13.5, 3.851027)])
sketch17.addConstraint(Sketcher.Constraint("Horizontal", 0))
sketch17.addConstraint(Sketcher.Constraint("Vertical", 1))
sketch17.addConstraint(Sketcher.Constraint("Horizontal", 2))
sketch17.addConstraint(Sketcher.Constraint("Vertical", 3))
sketch17.addConstraint(Sketcher.Constraint("DistanceY", -1, 1, 0, 2, Q("12 mm")))
sketch17.addConstraint(Sketcher.Constraint("DistanceX", 0, 2, 0, 1, Q("6.65 mm")))
sketch17.addConstraint(Sketcher.Constraint("DistanceX", 2, 2, -1, 1, Q("13.5 mm")))
sketch17.addConstraint(Sketcher.Constraint("DistanceY", 1, 2, 1, 1, Q("8.148973 mm")))
sketch17.setExpression("Constraints[9]", "Params.sketch17_width")
pad13 = doc.addObject("PartDesign::Pad", "Pad012")
body.addObject(pad13)
pad13.Profile = sketch17
pad13.setExpression("Length", "Params.pad13_length")

sketch18 = doc.addObject("Sketcher::SketchObject", "Sketch017")
body.addObject(sketch18)
sketch18.AttachmentSupport = (doc.XY_Plane, [""])
sketch18.MapMode = "FlatFace"
sketch18.AttachmentOffset = App.Placement(App.Vector(0, 0, 3), App.Rotation())
add_polygon(sketch18, [(-28.8, -13), (-28.8, -13.5), (16, -13.5), (16, -13)])
sketch18.addConstraint(Sketcher.Constraint("Vertical", 0))
sketch18.addConstraint(Sketcher.Constraint("Horizontal", 1))
sketch18.addConstraint(Sketcher.Constraint("Vertical", 2))
sketch18.addConstraint(Sketcher.Constraint("Horizontal", 3))
sketch18.addConstraint(Sketcher.Constraint("DistanceX", 1, 1, 1, 2, Q("44.8 mm")))
sketch18.addConstraint(Sketcher.Constraint("DistanceY", 0, 2, 0, 1, Q("0.5 mm")))
sketch18.addConstraint(Sketcher.Constraint("DistanceX", -1, 1, 1, 2, Q("16 mm")))
sketch18.addConstraint(Sketcher.Constraint("DistanceY", 2, 2, -1, 1, Q("13 mm")))
sketch18.setExpression("Constraints[8]", "Params.sketch18_width")
sketch18.setExpression("Constraints[9]", "Params.sketch18_height")
pad14 = doc.addObject("PartDesign::Pad", "Pad013")
body.addObject(pad14)
pad14.Profile = sketch18
pad14.setExpression("Length", "Params.pad14_length")

sketch19 = doc.addObject("Sketcher::SketchObject", "Sketch018")
body.addObject(sketch19)
sketch19.AttachmentSupport = (doc.YZ_Plane, [""])
sketch19.MapMode = "FlatFace"
sketch19.AttachmentOffset = App.Placement(App.Vector(0, 0, -28.8), App.Rotation())
sketch19.addGeometry(Part.ArcOfCircle(Part.Circle(App.Vector(-15.5, 0.851027, 0), App.Vector(0, 0, 1), 3), math.radians(48.189685), math.radians(90)), False)
sketch19.addGeometry(Part.ArcOfCircle(Part.Circle(App.Vector(-15.5, 0.851027, 0), App.Vector(0, 0, 1), 3), math.radians(90), math.radians(270)), False)
sketch19.addGeometry(Part.ArcOfCircle(Part.Circle(App.Vector(-15.5, 0.851027, 0), App.Vector(0, 0, 1), 3), math.radians(-90), math.radians(-48.189685)), False)
sketch19.addGeometry(Part.ArcOfCircle(Part.Circle(App.Vector(-15.5, 0.851027, 0), App.Vector(0, 0, 1), 3), math.radians(-48.189685), math.radians(-16.479703)), False)
sketch19.addGeometry(Part.ArcOfCircle(Part.Circle(App.Vector(-15.5, 0.851027, 0), App.Vector(0, 0, 1), 3), math.radians(-16.479703), math.radians(45.751838)), False)
sketch19.addGeometry(Part.LineSegment(App.Vector(-13.406698, 3, 0), App.Vector(-13.5, 3, 0)), False)
sketch19.addGeometry(Part.LineSegment(App.Vector(-13.5, 3, 0), App.Vector(-13.5, 3.087095, 0)), False)
sketch19.addGeometry(Part.Circle(App.Vector(-15.5, 0.851027, 0), App.Vector(0, 0, 1), 1.5), False)
sketch19.addConstraint(Sketcher.Constraint("Tangent", 0, 2, 1, 1))
sketch19.addConstraint(Sketcher.Constraint("Tangent", 1, 2, 2, 1))
sketch19.addConstraint(Sketcher.Constraint("Tangent", 2, 2, 3, 1))
sketch19.addConstraint(Sketcher.Constraint("Tangent", 3, 2, 4, 1))
sketch19.addConstraint(Sketcher.Constraint("Coincident", 4, 2, 5, 1))
sketch19.addConstraint(Sketcher.Constraint("Coincident", 5, 2, 6, 1))
sketch19.addConstraint(Sketcher.Constraint("Coincident", 6, 2, 0, 1))
sketch19.addConstraint(Sketcher.Constraint("Horizontal", 5))
sketch19.addConstraint(Sketcher.Constraint("Vertical", 6))
sketch19.addConstraint(Sketcher.Constraint("Coincident", 3, 3, 0, 3))
sketch19.addConstraint(Sketcher.Constraint("Coincident", 7, 3, 0, 3))
sketch19.addConstraint(Sketcher.Constraint("Equal", 0, 1))
sketch19.addConstraint(Sketcher.Constraint("Equal", 3, 4))
sketch19.addConstraint(Sketcher.Constraint("PointOnObject", 3, 2, -1))
sketch19.addConstraint(Sketcher.Constraint("Vertical", 7, 3, 0, 2))
sketch19.addConstraint(Sketcher.Constraint("Vertical", 0, 2, 1, 2))
sketch19.addConstraint(Sketcher.Constraint("Vertical", 2, 2, 5, 2))
sketch19.addConstraint(Sketcher.Constraint("Diameter", 7, Q("3 mm")))
sketch19.addConstraint(Sketcher.Constraint("Radius", 0, Q("3 mm")))
sketch19.addConstraint(Sketcher.Constraint("DistanceY", -1, 1, 4, 2, Q("3 mm")))
sketch19.addConstraint(Sketcher.Constraint("DistanceX", 1, 2, 2, 2, Q("2 mm")))
sketch19.addConstraint(Sketcher.Constraint("DistanceX", 0, 3, -1, 1, Q("15.5 mm")))
sketch19.addConstraint(Sketcher.Constraint("DistanceX", 5, 2, 5, 1, Q("0.093302 mm")))
sketch19.setExpression("Constraints[17]", "Params.sketch19_diameter")
sketch19.setExpression("Constraints[18]", "Params.sketch19_radius")
pocket5 = doc.addObject("PartDesign::Pocket", "Pocket004")
body.addObject(pocket5)
pocket5.Profile = sketch19
pocket5.setExpression("Length", "Params.pocket5_length")
pocket5.Reversed = True

sketch20 = doc.addObject("Sketcher::SketchObject", "Sketch019")
body.addObject(sketch20)
sketch20.AttachmentSupport = (doc.YZ_Plane, [""])
sketch20.MapMode = "FlatFace"
sketch20.AttachmentOffset = App.Placement(App.Vector(0, 0, 16), App.Rotation())
add_polygon(sketch20, [(-7.224921, 7.602147), (-9.999921, 9.204294), (-12.774921, 7.602147), (-12.774921, 4.397853), (-9.999921, 2.795706), (-7.224921, 4.397853)])
add_polygon(sketch20, [(17.775079, 7.602147), (15.000079, 9.204294), (12.225079, 7.602147), (12.225079, 4.397853), (15.000079, 2.795706), (17.775079, 4.397853)])
sketch20.addConstraint(Sketcher.Constraint("Vertical", 2))
sketch20.addConstraint(Sketcher.Constraint("Vertical", 5))
sketch20.addConstraint(Sketcher.Constraint("Vertical", 8))
sketch20.addConstraint(Sketcher.Constraint("Vertical", 11))
sketch20.addConstraint(Sketcher.Constraint("Parallel", 0, 3))
sketch20.addConstraint(Sketcher.Constraint("Parallel", 1, 4))
sketch20.addConstraint(Sketcher.Constraint("Parallel", 3, 6))
sketch20.addConstraint(Sketcher.Constraint("Parallel", 4, 7))
sketch20.addConstraint(Sketcher.Constraint("Parallel", 6, 9))
sketch20.addConstraint(Sketcher.Constraint("Parallel", 7, 10))
sketch20.addConstraint(Sketcher.Constraint("Horizontal", 2, 2, 4, 2))
sketch20.addConstraint(Sketcher.Constraint("Horizontal", 1, 2, 5, 2))
sketch20.addConstraint(Sketcher.Constraint("Horizontal", 0, 2, 6, 2))
sketch20.addConstraint(Sketcher.Constraint("Horizontal", 5, 2, 7, 2))
sketch20.addConstraint(Sketcher.Constraint("Horizontal", 4, 2, 8, 2))
sketch20.addConstraint(Sketcher.Constraint("Horizontal", 3, 2, 9, 2))
sketch20.addConstraint(Sketcher.Constraint("Horizontal", 8, 2, 10, 2))
sketch20.addConstraint(Sketcher.Constraint("Vertical", 0, 2, 3, 2))
sketch20.addConstraint(Sketcher.Constraint("Angle", 0, Q("150 deg")))
sketch20.addConstraint(Sketcher.Constraint("DistanceX", 0, 2, 6, 2, Q("25 mm")))
sketch20.addConstraint(Sketcher.Constraint("DistanceX", 2, 2, 4, 2, Q("5.55 mm")))
sketch20.addConstraint(Sketcher.Constraint("DistanceY", 2, 2, 2, 1, Q("3.204294 mm")))
sketch20.addConstraint(Sketcher.Constraint("DistanceX", 0, 2, -1, 1, Q("9.999921 mm")))
sketch20.addConstraint(Sketcher.Constraint("DistanceY", -1, 1, 0, 2, Q("9.204294 mm")))
pocket6 = doc.addObject("PartDesign::Pocket", "Pocket005")
body.addObject(pocket6)
pocket6.Profile = sketch20
pocket6.setExpression("Length", "Params.pocket6_length")

sketch21 = doc.addObject("Sketcher::SketchObject", "Sketch020")
body.addObject(sketch21)
sketch21.AttachmentSupport = (doc.XY_Plane, [""])
sketch21.MapMode = "FlatFace"
sketch21.AttachmentOffset = App.Placement(App.Vector(0, 0, 14), App.Rotation())
sketch21.addGeometry(Part.Circle(App.Vector(10, -10, 0), App.Vector(0, 0, 1), 2.95), False)
sketch21.addConstraint(Sketcher.Constraint("Diameter", 0, Q("5.9 mm")))
sketch21.addConstraint(Sketcher.Constraint("DistanceX", -1, 1, 0, 3, Q("10 mm")))
sketch21.addConstraint(Sketcher.Constraint("DistanceY", 0, 3, -1, 1, Q("10 mm")))
sketch21.setExpression("Constraints[0]", "Params.sketch21_diameter")
pocket7 = doc.addObject("PartDesign::Pocket", "Pocket006")
body.addObject(pocket7)
pocket7.Profile = sketch21
pocket7.setExpression("Length", "Params.pocket7_length")

doc.recompute()
